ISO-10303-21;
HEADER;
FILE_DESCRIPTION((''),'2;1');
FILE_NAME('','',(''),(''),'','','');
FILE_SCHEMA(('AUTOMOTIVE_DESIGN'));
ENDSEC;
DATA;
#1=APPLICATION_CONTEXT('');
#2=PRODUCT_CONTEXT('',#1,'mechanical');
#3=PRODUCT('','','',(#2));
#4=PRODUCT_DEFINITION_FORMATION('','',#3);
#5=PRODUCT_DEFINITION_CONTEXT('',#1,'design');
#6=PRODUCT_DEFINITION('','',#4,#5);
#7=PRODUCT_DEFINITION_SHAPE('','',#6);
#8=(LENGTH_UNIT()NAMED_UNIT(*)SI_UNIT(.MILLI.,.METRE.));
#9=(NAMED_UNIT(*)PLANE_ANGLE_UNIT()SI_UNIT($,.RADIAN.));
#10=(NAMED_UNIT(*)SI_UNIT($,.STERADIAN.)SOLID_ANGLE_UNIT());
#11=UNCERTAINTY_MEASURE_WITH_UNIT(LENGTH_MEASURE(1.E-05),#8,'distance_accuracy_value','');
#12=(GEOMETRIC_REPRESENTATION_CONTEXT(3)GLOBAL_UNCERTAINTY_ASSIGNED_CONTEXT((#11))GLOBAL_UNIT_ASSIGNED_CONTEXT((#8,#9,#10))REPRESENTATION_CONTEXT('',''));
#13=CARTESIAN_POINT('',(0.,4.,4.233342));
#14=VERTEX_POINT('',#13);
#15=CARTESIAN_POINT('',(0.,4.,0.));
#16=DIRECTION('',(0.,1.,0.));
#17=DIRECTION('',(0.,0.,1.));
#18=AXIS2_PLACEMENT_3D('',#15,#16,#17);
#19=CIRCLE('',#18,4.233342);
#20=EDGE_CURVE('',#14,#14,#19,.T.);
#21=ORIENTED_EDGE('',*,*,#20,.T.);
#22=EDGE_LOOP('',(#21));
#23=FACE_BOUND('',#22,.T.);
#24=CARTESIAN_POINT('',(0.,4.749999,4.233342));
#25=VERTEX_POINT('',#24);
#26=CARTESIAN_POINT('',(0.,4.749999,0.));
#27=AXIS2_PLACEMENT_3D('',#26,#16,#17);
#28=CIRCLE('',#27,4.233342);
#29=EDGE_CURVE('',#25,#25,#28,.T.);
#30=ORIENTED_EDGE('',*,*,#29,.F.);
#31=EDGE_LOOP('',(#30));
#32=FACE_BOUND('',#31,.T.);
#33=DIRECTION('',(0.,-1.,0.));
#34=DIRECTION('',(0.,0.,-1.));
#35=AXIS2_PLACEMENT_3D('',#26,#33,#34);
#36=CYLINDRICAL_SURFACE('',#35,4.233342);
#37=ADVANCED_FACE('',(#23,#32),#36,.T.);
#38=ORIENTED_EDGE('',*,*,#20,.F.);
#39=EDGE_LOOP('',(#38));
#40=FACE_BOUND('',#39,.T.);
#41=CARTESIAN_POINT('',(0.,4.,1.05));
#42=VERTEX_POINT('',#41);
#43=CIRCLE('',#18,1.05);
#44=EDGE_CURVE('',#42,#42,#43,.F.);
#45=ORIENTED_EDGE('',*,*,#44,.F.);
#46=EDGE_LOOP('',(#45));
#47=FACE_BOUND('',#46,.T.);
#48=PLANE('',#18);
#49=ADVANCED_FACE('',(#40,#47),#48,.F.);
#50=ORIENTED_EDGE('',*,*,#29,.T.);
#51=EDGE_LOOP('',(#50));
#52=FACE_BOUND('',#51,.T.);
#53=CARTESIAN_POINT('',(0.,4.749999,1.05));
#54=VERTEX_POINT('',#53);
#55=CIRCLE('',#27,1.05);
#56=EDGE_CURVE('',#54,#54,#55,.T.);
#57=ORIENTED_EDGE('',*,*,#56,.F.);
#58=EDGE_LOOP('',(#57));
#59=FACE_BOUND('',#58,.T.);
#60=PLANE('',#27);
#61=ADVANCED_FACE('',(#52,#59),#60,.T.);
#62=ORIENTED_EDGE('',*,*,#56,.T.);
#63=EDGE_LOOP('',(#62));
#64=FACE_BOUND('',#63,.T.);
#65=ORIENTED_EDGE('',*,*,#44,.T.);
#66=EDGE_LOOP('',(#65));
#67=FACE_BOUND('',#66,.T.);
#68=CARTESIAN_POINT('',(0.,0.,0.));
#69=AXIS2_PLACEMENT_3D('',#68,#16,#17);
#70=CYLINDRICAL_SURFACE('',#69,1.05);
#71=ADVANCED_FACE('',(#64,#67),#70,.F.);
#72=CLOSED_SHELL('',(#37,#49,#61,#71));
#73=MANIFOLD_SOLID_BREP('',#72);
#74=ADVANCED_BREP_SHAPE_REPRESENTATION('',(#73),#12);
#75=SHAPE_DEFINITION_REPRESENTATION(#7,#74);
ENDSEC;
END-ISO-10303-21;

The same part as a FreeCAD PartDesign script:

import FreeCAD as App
import Part
import Sketcher

doc = App.newDocument("Part")
body = doc.addObject("PartDesign::Body", "Body")

# Sketch on XZ plane
sketch1 = body.newObject("Sketcher::SketchObject", "Sketch")
sketch1.AttachmentSupport = (doc.getObject("XZ_Plane"), [""])
sketch1.MapMode = "FlatFace"
sketch1.addGeometry(Part.Circle(App.Vector(0, 0, 0), App.Vector(0, 0, 1), 2.9), False)
sketch1.addConstraint(Sketcher.Constraint("Coincident", 0, 3, -1, 1))
sketch1.addConstraint(Sketcher.Constraint("Diameter", 0, 5.842))
pad1 = body.newObject("PartDesign::Pad", "Pad")
pad1.Profile = sketch1
pad1.Length = 4
pad1.Reversed = True

# Sketch on XZ plane
sketch2 = body.newObject("Sketcher::SketchObject", "Sketch001")
sketch2.AttachmentSupport = (doc.getObject("XZ_Plane"), [""])
sketch2.MapMode = "FlatFace"
sketch2.AttachmentOffset = App.Placement(App.Vector(0, 0, -4), App.Rotation())
sketch2.addGeometry(Part.Circle(App.Vector(0, 0, 0), App.Vector(0, 0, 1), 4.2), False)
sketch2.addConstraint(Sketcher.Constraint("Coincident", 0, 3, -1, 1))
sketch2.addConstraint(Sketcher.Constraint("Diameter", 0, 8.466684))
pad2 = body.newObject("PartDesign::Pad", "Pad001")
pad2.Profile = sketch2
pad2.Length = 0.749999
pad2.Reversed = True

# Sketch on XZ plane
sketch3 = body.newObject("Sketcher::SketchObject", "Sketch002")
sketch3.AttachmentSupport = (doc.getObject("XZ_Plane"), [""])
sketch3.MapMode = "FlatFace"
sketch3.AttachmentOffset = App.Placement(App.Vector(0, 0, -4.749999), App.Rotation())
sketch3.addGeometry(Part.Circle(App.Vector(0, 0, 0), App.Vector(0, 0, 1), 1.1), False)
sketch3.addConstraint(Sketcher.Constraint("Coincident", 0, 3, -1, 1))
sketch3.addConstraint(Sketcher.Constraint("Diameter", 0, 2.1))
pocket1 = body.newObject("PartDesign::Pocket", "Pocket")
pocket1.Profile = sketch3
pocket1.Type = "ThroughAll"
pocket1.Reversed = True

# Sketch on XZ plane
sketch4 = body.newObject("Sketcher::SketchObject", "Sketch003")
sketch4.AttachmentSupport = (doc.getObject("XZ_Plane"), [""])
sketch4.MapMode = "FlatFace"
sketch4.addGeometry(Part.Circle(App.Vector(0, 0, 0), App.Vector(0, 0, 1), 2.9), False)
sketch4.addConstraint(Sketcher.Constraint("Coincident", 0, 3, -1, 1))
sketch4.addConstraint(Sketcher.Constraint("Diameter", 0, 5.842))
pocket2 = body.newObject("PartDesign::Pocket", "Pocket001")
pocket2.Profile = sketch4
pocket2.Length = 4

doc.recompute()
